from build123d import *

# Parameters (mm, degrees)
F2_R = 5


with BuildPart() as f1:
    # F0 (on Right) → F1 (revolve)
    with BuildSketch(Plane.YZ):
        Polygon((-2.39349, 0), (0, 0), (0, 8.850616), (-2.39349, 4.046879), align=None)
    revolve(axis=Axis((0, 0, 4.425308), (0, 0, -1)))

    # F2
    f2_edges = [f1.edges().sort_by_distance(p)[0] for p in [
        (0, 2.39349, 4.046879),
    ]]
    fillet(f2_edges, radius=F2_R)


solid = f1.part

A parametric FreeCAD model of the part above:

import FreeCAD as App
import Part
import Sketcher
from FreeCAD import Vector
Q = App.Units.Quantity


def edges_at(feature, points):
    """Names of the edges that pass closest to the given points."""
    edges = feature.Shape.Edges
    near = lambda p: min(range(len(edges)), key=lambda i: edges[i].distToShape(Part.Vertex(*p))[0])
    return sorted({f"Edge{near(p) + 1}" for p in points})


def add_polygon(sketch, points):
    """Adds a closed chain of lines whose ends are joined by coincident constraints."""
    first, n = sketch.GeometryCount, len(points)
    for a, b in zip(points, points[1:] + points[:1]):
        sketch.addGeometry(Part.LineSegment(App.Vector(*a, 0), App.Vector(*b, 0)), False)
    for i in range(n):
        sketch.addConstraint(Sketcher.Constraint("Coincident", first + i, 2, first + (i + 1) % n, 1))

doc = App.newDocument("Part")
params = doc.addObject("Spreadsheet::Sheet", "Params")
for row, (alias, value) in enumerate([
    ("revolution_angle", "360 deg"),
    ("fillet_radius", "5 mm"),
], start=1):
    params.set(f"A{row}", alias)
    params.set(f"B{row}", "=" + value)
    params.setAlias(f"B{row}", alias)

body = doc.addObject("PartDesign::Body", "Body")

# Sketch on YZ plane
sketch1 = body.newObject("Sketcher::SketchObject", "Sketch")
sketch1.AttachmentSupport = (doc.getObject("YZ_Plane"), [""])
sketch1.MapMode = "FlatFace"
add_polygon(sketch1, [(-2.4, 0), (0, 0), (0, 8.9), (-2.4, 4)])  # lines 0-3
sketch1.addConstraint([
    Sketcher.Constraint("Horizontal", 0),
    Sketcher.Constraint("Vertical", 1),
    Sketcher.Constraint("Vertical", 3),
    Sketcher.Constraint("Coincident", 0, 2, -1, 1),
    Sketcher.Constraint("Distance", 2, Q("5.366999 mm")),
    Sketcher.Constraint("DistanceX", 0, 1, 0, 2, Q("2.39349 mm")),
    Sketcher.Constraint("DistanceY", 3, 2, 3, 1, Q("4.046879 mm")),
])
revolution = body.newObject("PartDesign::Revolution", "Revolution")
revolution.Profile = sketch1
revolution.ReferenceAxis = (sketch1, ["V_Axis"])
revolution.setExpression("Angle", "Params.revolution_angle")
doc.recompute()

fillet = body.newObject("PartDesign::Fillet", "Fillet")
fillet.Base = (revolution, edges_at(revolution, [(0, 2.393, 4.047)]))
fillet.setExpression("Radius", "Params.fillet_radius")

doc.recompute()
